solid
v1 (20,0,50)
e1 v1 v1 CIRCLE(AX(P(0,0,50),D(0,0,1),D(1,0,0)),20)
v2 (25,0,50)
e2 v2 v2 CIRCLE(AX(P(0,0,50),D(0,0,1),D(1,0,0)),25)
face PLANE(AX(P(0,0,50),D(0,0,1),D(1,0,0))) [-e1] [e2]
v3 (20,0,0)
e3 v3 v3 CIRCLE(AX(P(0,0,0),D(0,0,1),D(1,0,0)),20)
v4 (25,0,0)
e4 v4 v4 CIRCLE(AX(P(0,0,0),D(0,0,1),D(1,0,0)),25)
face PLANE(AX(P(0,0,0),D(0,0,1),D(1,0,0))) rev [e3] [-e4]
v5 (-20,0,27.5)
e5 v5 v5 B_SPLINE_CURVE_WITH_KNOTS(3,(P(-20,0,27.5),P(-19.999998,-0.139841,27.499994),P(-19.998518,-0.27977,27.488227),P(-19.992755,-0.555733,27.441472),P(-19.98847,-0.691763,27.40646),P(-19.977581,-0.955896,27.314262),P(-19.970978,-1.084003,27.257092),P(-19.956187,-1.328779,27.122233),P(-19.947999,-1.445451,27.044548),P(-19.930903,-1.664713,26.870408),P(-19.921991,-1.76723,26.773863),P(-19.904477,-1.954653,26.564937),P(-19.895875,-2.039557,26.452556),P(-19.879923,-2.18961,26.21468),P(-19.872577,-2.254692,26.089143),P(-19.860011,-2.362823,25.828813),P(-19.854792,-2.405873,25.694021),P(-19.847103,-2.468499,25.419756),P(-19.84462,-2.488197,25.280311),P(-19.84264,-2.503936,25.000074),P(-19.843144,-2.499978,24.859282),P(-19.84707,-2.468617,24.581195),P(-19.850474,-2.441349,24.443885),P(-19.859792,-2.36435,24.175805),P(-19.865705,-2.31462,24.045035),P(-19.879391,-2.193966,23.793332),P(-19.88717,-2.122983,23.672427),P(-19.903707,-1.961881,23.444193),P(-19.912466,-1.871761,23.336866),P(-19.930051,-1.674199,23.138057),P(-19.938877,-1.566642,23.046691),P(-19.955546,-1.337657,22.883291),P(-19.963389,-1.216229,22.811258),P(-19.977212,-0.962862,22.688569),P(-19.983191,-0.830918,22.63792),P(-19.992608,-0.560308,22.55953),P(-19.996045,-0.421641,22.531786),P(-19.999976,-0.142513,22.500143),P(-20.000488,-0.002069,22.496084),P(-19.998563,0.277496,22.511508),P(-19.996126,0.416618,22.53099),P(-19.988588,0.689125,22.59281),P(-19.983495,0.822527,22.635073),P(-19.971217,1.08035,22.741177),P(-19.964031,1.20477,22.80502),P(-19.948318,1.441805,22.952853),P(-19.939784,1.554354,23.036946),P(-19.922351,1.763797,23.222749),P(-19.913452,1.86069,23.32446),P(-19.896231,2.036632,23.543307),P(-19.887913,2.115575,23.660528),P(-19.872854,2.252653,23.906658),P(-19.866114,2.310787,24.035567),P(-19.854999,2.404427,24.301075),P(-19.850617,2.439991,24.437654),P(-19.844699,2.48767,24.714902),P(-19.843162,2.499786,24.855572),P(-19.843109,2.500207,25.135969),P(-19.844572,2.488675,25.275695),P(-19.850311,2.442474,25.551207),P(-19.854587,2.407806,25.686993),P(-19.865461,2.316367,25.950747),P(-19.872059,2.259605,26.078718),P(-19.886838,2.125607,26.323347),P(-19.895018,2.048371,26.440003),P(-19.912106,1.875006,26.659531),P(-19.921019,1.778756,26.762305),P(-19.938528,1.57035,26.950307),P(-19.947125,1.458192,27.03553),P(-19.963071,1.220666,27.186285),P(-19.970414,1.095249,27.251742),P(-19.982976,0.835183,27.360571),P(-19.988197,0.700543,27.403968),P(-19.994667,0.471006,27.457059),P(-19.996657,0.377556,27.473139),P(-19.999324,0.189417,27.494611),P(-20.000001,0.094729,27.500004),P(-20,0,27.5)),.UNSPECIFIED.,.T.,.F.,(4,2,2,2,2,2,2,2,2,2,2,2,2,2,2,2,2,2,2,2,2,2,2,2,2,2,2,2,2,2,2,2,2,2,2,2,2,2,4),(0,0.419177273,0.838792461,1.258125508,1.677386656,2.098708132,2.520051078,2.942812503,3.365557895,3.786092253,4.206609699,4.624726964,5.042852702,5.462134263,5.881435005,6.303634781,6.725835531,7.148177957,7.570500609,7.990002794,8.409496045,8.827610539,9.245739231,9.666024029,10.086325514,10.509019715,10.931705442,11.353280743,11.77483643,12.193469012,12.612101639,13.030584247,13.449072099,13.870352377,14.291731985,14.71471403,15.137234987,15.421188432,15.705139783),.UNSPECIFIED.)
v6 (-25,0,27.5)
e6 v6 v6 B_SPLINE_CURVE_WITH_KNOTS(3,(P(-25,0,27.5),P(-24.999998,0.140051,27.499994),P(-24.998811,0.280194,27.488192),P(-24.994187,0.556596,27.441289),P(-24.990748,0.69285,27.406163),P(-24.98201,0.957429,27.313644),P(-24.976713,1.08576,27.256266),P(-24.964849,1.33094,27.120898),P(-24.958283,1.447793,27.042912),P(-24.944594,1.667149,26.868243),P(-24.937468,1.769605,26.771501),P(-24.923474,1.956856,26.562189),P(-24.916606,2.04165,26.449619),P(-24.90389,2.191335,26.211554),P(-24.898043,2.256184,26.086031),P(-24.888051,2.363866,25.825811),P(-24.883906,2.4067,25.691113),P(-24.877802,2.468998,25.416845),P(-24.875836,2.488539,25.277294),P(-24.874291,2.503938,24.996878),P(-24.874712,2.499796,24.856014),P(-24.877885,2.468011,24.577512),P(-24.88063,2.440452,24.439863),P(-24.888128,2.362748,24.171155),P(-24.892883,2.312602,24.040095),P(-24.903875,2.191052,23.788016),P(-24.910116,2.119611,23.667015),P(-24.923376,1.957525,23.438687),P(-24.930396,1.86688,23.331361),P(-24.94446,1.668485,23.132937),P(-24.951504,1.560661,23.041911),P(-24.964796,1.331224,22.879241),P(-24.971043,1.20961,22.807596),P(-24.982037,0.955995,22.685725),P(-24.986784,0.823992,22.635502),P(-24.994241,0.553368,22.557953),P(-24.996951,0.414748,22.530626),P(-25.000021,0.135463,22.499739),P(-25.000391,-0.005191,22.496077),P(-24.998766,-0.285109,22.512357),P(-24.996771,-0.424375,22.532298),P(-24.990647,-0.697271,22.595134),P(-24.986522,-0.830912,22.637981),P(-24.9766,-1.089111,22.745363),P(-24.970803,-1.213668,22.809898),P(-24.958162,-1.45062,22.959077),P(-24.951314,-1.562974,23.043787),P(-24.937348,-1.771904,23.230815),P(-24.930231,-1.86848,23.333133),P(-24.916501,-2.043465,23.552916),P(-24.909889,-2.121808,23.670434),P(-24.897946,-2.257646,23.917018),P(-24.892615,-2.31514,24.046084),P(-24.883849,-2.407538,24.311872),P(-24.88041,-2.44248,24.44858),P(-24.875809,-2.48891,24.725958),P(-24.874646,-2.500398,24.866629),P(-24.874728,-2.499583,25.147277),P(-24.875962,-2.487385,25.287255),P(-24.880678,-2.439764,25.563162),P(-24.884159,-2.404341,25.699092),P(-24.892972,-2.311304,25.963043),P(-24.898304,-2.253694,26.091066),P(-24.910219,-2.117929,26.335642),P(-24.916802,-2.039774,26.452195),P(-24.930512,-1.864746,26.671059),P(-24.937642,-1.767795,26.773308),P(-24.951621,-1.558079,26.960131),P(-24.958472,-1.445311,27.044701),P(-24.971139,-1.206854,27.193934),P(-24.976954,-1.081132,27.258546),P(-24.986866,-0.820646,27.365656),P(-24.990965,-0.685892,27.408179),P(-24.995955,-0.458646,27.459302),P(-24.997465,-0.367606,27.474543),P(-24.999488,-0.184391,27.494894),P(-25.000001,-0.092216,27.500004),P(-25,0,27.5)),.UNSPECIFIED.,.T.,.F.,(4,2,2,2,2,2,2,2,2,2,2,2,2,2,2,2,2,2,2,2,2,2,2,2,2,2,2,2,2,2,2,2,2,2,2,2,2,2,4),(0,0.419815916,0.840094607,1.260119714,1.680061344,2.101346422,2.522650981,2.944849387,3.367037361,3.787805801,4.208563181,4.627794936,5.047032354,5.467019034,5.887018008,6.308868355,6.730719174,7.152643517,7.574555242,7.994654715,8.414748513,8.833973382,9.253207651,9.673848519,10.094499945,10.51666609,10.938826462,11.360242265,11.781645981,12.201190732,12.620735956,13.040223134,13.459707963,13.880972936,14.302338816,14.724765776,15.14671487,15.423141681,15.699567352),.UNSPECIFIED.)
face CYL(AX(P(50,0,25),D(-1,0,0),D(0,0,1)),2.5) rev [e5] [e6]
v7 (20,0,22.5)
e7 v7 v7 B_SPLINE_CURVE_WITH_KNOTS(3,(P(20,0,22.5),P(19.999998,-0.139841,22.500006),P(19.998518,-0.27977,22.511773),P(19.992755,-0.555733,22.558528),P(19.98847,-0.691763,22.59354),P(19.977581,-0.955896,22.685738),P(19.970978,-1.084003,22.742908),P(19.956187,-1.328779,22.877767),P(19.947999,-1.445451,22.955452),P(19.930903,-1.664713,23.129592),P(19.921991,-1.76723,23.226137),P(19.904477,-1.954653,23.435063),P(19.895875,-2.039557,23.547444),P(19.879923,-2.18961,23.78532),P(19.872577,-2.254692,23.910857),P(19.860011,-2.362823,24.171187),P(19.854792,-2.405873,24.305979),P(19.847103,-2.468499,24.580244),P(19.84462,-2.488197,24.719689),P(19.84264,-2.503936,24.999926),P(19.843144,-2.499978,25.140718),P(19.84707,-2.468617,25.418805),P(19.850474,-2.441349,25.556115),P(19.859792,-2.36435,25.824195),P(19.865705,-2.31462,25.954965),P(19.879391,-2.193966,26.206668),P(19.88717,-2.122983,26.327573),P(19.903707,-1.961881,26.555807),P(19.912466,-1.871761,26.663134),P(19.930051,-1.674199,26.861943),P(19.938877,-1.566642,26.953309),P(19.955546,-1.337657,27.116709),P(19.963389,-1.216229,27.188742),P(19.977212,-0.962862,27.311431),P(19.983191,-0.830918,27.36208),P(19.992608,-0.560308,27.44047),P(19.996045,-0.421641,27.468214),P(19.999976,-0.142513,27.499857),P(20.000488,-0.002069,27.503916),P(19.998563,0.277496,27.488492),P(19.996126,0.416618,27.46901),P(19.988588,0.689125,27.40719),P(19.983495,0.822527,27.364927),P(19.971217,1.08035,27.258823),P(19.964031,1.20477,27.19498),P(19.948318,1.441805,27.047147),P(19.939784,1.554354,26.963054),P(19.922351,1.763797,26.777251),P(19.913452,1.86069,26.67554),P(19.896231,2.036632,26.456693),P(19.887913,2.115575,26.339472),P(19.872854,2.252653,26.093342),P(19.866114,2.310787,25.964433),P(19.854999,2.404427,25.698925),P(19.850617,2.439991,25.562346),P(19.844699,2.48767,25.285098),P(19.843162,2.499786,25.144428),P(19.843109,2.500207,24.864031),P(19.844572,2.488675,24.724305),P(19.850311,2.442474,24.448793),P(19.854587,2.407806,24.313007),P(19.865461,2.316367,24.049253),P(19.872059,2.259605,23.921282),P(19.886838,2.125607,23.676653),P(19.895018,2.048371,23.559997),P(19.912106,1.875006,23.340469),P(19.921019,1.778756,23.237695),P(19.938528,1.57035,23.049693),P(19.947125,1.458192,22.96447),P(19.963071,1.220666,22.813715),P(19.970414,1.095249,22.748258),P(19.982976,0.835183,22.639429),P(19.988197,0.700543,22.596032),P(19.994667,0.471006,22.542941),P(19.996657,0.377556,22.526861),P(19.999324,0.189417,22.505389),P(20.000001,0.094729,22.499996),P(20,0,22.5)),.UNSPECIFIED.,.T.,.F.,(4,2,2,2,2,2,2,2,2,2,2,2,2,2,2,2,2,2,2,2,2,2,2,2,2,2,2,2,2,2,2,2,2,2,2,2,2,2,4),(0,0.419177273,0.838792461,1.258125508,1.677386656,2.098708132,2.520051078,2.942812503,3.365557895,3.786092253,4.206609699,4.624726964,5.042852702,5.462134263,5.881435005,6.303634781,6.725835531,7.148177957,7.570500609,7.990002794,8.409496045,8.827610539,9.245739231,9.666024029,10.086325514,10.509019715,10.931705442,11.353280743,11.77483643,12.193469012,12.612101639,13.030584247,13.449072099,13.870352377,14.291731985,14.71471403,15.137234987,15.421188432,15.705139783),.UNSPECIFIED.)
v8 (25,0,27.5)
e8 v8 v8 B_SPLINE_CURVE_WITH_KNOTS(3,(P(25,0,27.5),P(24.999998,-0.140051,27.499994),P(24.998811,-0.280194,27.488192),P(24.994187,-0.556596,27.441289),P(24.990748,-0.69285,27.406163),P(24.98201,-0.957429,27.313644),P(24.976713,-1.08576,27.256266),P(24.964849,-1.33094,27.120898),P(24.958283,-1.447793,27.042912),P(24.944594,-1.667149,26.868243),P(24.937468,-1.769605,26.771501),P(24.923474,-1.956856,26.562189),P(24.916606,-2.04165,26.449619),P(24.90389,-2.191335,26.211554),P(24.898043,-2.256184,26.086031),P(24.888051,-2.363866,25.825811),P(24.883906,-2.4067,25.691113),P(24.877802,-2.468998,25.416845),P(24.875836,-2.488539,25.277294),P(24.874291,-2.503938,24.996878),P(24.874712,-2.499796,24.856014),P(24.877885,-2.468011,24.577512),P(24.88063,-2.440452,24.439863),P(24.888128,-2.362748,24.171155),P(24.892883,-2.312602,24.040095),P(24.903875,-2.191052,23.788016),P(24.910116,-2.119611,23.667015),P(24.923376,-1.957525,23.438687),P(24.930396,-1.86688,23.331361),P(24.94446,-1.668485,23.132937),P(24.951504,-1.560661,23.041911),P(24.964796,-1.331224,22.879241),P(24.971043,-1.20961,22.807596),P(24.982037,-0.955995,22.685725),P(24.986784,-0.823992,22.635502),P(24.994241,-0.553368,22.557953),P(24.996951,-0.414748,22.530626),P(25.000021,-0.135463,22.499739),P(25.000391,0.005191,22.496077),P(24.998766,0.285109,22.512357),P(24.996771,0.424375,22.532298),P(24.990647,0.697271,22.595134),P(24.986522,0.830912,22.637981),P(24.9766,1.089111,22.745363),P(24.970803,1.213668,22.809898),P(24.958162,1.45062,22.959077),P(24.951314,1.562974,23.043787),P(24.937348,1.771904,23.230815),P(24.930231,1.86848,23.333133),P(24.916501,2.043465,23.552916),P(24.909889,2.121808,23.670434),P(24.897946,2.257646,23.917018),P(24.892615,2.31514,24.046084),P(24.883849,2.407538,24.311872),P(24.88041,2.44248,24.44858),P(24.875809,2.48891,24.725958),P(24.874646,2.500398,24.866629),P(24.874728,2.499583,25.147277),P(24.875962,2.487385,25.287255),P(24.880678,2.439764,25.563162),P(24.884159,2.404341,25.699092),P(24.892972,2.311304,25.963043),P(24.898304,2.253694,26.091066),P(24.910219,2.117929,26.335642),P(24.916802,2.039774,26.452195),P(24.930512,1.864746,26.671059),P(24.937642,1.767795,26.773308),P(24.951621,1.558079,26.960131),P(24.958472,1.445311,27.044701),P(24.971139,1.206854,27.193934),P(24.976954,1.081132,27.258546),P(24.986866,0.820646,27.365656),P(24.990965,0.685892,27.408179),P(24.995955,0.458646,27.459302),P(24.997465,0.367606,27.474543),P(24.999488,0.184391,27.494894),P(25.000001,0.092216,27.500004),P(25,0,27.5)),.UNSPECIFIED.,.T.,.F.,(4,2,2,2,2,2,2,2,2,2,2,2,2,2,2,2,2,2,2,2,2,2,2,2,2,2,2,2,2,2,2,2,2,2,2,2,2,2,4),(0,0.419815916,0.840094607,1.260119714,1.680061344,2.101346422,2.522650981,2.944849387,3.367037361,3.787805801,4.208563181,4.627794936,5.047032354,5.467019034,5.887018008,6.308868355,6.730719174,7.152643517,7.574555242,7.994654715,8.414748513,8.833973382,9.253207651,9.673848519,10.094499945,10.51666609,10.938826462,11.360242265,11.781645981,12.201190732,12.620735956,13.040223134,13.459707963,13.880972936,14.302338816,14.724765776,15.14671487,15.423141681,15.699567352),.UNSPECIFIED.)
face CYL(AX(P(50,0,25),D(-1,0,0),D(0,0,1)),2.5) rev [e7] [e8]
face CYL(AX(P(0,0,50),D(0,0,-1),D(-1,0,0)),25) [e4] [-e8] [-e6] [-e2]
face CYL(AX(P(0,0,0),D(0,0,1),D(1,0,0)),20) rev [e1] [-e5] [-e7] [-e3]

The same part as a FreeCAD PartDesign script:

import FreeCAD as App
import Part
import Sketcher

V = App.Vector
Q = App.Units.Quantity

doc = App.newDocument("Part")
body = doc.addObject("PartDesign::Body", "Body")

# Sketch on XY plane
sketch1 = doc.addObject("Sketcher::SketchObject", "Sketch")
body.addObject(sketch1)
sketch1.AttachmentSupport = (doc.XY_Plane, [""])
sketch1.MapMode = "FlatFace"
sketch1.addGeometry(Part.Circle(V(0, 0, 0), V(0, 0, 1), 25), False)
sketch1.addConstraint([
    Sketcher.Constraint("Coincident", 0, 3, -1, 1),
    Sketcher.Constraint("Diameter", 0, Q("50 mm")),
])
pad1 = doc.addObject("PartDesign::Pad", "Pad")
body.addObject(pad1)
pad1.Profile = sketch1
pad1.Length = 50

# Sketch on XY plane
sketch2 = doc.addObject("Sketcher::SketchObject", "Sketch001")
body.addObject(sketch2)
sketch2.AttachmentSupport = (doc.XY_Plane, [""])
sketch2.MapMode = "FlatFace"
sketch2.AttachmentOffset = App.Placement(V(0, 0, 50), App.Rotation())
sketch2.addGeometry(Part.Circle(V(0, 0, 0), V(0, 0, 1), 20), False)
sketch2.addConstraint([
    Sketcher.Constraint("Coincident", 0, 3, -1, 1),
    Sketcher.Constraint("Diameter", 0, Q("40 mm")),
])
pocket1 = doc.addObject("PartDesign::Pocket", "Pocket")
body.addObject(pocket1)
pocket1.Profile = sketch2
pocket1.Length = 50

# Sketch on YZ plane
sketch3 = doc.addObject("Sketcher::SketchObject", "Sketch002")
body.addObject(sketch3)
sketch3.AttachmentSupport = (doc.YZ_Plane, [""])
sketch3.MapMode = "FlatFace"
sketch3.addGeometry(Part.Circle(V(0, 25, 0), V(0, 0, 1), 2.5), False)
sketch3.addConstraint([
    Sketcher.Constraint("PointOnObject", 0, 3, -2),
    Sketcher.Constraint("Diameter", 0, Q("5 mm")),
    Sketcher.Constraint("DistanceY", -1, 1, 0, 3, Q("25 mm")),
])
pocket2 = doc.addObject("PartDesign::Pocket", "Pocket001")
body.addObject(pocket2)
pocket2.Profile = sketch3
pocket2.Type = "ThroughAll"
pocket2.Midplane = True

doc.recompute()
